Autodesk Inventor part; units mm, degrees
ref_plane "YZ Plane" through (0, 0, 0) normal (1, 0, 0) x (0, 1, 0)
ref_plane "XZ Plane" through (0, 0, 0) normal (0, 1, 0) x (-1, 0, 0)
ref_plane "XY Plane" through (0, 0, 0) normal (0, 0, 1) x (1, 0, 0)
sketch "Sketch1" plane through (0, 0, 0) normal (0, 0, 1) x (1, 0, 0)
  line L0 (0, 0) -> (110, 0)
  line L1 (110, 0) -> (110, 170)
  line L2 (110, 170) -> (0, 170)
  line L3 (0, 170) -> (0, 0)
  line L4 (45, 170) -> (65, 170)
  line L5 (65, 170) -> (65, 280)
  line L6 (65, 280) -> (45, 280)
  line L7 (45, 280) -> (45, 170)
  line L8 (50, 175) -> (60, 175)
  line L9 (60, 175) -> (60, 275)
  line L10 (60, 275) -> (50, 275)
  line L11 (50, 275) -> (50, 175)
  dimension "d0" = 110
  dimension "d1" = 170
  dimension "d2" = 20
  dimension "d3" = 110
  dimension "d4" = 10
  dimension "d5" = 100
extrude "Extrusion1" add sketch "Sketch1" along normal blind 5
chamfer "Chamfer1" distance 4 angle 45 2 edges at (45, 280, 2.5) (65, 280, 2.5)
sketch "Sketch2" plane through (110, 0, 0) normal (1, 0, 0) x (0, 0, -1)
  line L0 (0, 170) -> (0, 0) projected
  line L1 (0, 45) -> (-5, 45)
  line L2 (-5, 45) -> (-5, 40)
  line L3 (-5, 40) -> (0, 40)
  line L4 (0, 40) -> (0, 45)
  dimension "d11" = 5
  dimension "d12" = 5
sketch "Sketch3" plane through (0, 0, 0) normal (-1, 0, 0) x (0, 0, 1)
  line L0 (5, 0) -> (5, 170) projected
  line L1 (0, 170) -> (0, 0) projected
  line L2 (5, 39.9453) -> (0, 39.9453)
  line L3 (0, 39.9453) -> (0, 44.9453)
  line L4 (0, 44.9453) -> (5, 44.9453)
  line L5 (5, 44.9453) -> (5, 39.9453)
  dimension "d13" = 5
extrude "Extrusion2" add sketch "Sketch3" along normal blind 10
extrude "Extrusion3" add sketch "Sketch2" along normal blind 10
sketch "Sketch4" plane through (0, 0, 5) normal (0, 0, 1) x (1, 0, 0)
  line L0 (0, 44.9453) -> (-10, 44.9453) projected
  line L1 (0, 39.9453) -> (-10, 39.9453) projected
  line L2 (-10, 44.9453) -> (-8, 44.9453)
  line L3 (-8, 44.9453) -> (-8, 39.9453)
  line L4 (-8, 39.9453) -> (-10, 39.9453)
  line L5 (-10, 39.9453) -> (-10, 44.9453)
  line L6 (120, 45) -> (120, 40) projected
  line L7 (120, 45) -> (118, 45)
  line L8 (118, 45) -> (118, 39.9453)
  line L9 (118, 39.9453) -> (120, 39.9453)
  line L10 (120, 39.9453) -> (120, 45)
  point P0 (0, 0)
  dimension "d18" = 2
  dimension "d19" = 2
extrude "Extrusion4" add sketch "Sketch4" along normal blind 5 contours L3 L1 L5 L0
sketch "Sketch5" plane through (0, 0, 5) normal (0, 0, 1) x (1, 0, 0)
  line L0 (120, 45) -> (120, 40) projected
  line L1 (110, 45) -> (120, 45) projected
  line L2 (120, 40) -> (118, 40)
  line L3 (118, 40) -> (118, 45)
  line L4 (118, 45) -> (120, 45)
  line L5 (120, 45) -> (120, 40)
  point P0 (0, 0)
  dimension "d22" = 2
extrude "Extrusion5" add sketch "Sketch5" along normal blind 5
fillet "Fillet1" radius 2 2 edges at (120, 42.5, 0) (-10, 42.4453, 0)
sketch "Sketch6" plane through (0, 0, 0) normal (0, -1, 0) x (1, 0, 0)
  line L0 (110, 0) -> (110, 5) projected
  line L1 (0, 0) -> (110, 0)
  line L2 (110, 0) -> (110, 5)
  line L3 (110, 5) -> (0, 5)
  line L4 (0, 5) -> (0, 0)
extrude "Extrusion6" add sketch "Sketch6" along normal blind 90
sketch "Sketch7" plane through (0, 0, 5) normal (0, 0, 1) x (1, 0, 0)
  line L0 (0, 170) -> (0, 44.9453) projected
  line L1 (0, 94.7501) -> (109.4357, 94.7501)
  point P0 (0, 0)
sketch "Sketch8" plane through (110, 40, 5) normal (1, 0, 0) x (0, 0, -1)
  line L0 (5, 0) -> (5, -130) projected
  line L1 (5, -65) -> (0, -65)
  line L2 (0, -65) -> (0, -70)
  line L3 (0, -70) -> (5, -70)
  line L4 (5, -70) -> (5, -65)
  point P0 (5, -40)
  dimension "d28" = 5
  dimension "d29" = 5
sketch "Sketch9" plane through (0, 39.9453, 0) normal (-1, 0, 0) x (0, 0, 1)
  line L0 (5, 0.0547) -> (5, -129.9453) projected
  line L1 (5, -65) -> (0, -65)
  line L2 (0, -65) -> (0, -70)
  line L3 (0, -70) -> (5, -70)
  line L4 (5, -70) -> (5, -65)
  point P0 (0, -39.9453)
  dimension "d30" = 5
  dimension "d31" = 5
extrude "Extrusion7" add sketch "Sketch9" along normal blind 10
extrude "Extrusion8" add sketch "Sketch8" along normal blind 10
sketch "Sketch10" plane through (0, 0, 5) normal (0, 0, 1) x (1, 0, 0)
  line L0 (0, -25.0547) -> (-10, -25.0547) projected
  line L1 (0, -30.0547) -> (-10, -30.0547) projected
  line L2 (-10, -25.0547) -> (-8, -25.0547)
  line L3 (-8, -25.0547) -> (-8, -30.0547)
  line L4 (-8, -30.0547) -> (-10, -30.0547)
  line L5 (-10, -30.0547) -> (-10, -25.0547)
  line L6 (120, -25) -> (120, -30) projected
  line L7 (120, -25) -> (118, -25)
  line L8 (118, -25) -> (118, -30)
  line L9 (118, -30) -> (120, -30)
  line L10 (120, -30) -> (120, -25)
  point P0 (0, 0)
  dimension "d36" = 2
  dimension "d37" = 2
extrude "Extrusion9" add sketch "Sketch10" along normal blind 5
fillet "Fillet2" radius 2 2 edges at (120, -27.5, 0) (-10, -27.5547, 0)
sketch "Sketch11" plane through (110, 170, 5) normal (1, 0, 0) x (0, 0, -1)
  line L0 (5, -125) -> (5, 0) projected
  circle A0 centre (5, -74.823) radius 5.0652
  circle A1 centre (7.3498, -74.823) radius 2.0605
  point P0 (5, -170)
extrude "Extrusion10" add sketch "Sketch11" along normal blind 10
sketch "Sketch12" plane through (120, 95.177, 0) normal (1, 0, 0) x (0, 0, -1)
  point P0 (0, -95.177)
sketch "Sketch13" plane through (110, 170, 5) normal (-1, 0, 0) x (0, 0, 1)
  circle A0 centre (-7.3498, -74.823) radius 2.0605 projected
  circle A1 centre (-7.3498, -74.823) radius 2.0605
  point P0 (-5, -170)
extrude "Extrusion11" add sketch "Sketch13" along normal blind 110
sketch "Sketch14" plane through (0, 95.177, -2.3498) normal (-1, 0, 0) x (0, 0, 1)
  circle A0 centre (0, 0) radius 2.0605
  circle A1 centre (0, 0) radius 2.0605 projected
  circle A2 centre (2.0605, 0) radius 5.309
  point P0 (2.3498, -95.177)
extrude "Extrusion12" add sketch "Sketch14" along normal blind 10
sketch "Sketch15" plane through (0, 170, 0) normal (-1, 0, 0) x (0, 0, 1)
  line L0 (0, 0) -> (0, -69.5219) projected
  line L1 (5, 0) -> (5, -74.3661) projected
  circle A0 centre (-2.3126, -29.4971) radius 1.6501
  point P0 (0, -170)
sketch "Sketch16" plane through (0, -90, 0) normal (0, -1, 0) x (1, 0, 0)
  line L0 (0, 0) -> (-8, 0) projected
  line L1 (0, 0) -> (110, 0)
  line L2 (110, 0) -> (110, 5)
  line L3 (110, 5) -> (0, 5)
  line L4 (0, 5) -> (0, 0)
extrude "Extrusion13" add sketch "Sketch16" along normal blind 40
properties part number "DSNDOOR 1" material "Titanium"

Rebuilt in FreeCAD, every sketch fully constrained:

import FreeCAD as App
import Part
import Sketcher


def edges_at(feature, points):
    """Names of the edges that pass closest to the given points."""
    edges = feature.Shape.Edges
    near = lambda p: min(range(len(edges)), key=lambda i: edges[i].distToShape(Part.Vertex(*p))[0])
    return sorted({f"Edge{near(p) + 1}" for p in points})


def add_polygon(sketch, points):
    """Adds a closed chain of lines whose ends are joined by coincident constraints."""
    first, n = sketch.GeometryCount, len(points)
    for a, b in zip(points, points[1:] + points[:1]):
        sketch.addGeometry(Part.LineSegment(App.Vector(*a, 0), App.Vector(*b, 0)), False)
    for i in range(n):
        sketch.addConstraint(Sketcher.Constraint("Coincident", first + i, 2, first + (i + 1) % n, 1))

doc = App.newDocument("Part")
body = doc.addObject("PartDesign::Body", "Body")
body.AllowCompound = True

# Sketch on XY plane
sketch1 = body.newObject("Sketcher::SketchObject", "Sketch")
sketch1.AttachmentSupport = (doc.getObject("XY_Plane"), [""])
sketch1.MapMode = "FlatFace"
add_polygon(sketch1, [(0, 170), (0, 0), (110, 0), (110, 170), (65, 170), (65, 280), (45, 280), (45, 170)])  # lines 0-7
add_polygon(sketch1, [(50, 175), (50, 275), (60, 275), (60, 175)])  # lines 8-11
sketch1.addConstraint([
    Sketcher.Constraint("Vertical", 0),
    Sketcher.Constraint("Horizontal", 1),
    Sketcher.Constraint("Vertical", 2),
    Sketcher.Constraint("Horizontal", 3),
    Sketcher.Constraint("Vertical", 4),
    Sketcher.Constraint("Horizontal", 5),
    Sketcher.Constraint("Vertical", 6),
    Sketcher.Constraint("Horizontal", 7),
    Sketcher.Constraint("Vertical", 8),
    Sketcher.Constraint("Horizontal", 9),
    Sketcher.Constraint("Vertical", 10),
    Sketcher.Constraint("Horizontal", 11),
    Sketcher.Constraint("Coincident", 0, 2, -1, 1),
    Sketcher.Constraint("Horizontal", 3, 2, 6, 2),
    Sketcher.Constraint("Equal", 3, 7),
    Sketcher.Constraint("Equal", 1, 4),
    Sketcher.Constraint("DistanceX", 1, 1, 1, 2, 110.0),
    Sketcher.Constraint("DistanceX", 5, 2, 5, 1, 20.0),
    Sketcher.Constraint("DistanceX", 9, 1, 9, 2, 10.0),
    Sketcher.Constraint("DistanceY", 0, 2, 0, 1, 170.0),
    Sketcher.Constraint("DistanceY", 8, 1, 8, 2, 100.0),
    Sketcher.Constraint("DistanceX", -1, 1, 8, 2, 50.0),
    Sketcher.Constraint("DistanceY", -1, 1, 8, 2, 275.0),
])
pad1 = body.newObject("PartDesign::Pad", "Pad")
pad1.Profile = sketch1
pad1.Length = 5
doc.recompute()

chamfer = body.newObject("PartDesign::Chamfer", "Chamfer")
chamfer.Base = (pad1, edges_at(pad1, [(45, 280, 2.5), (65, 280, 2.5)]))
chamfer.Size = 4

# Sketch on YZ plane
sketch2 = body.newObject("Sketcher::SketchObject", "Sketch001")
sketch2.AttachmentSupport = (doc.getObject("YZ_Plane"), [""])
sketch2.MapMode = "FlatFace"
add_polygon(sketch2, [(40, 0), (40, 5), (45, 5), (45, 0)])  # lines 0-3
sketch2.addConstraint([
    Sketcher.Constraint("Vertical", 0),
    Sketcher.Constraint("Horizontal", 1),
    Sketcher.Constraint("Vertical", 2),
    Sketcher.Constraint("Horizontal", 3),
    Sketcher.Constraint("PointOnObject", 2, 2, -1),
    Sketcher.Constraint("Equal", 3, 0),
    Sketcher.Constraint("DistanceX", 1, 1, 1, 2, 5.0),
    Sketcher.Constraint("DistanceX", -1, 1, 0, 2, 39.9453),
])
pad2 = body.newObject("PartDesign::Pad", "Pad001")
pad2.Profile = sketch2
pad2.Length = 10
pad2.Reversed = True

# Sketch on YZ plane
sketch3 = body.newObject("Sketcher::SketchObject", "Sketch002")
sketch3.AttachmentSupport = (doc.getObject("YZ_Plane"), [""])
sketch3.MapMode = "FlatFace"
sketch3.AttachmentOffset = App.Placement(App.Vector(0, 0, 110), App.Rotation())
add_polygon(sketch3, [(40, 0), (45, 0), (45, 5), (40, 5)])  # lines 0-3
sketch3.addConstraint([
    Sketcher.Constraint("Horizontal", 0),
    Sketcher.Constraint("Vertical", 1),
    Sketcher.Constraint("Horizontal", 2),
    Sketcher.Constraint("Vertical", 3),
    Sketcher.Constraint("PointOnObject", 0, 2, -1),
    Sketcher.Constraint("Equal", 2, 1),
    Sketcher.Constraint("DistanceX", 0, 1, 0, 2, 5.0),
    Sketcher.Constraint("DistanceX", -1, 1, 0, 2, 45.0),
])
pad3 = body.newObject("PartDesign::Pad", "Pad002")
pad3.Profile = sketch3
pad3.Length = 10

# Sketch on XY plane
sketch4 = body.newObject("Sketcher::SketchObject", "Sketch003")
sketch4.AttachmentSupport = (doc.getObject("XY_Plane"), [""])
sketch4.MapMode = "FlatFace"
sketch4.AttachmentOffset = App.Placement(App.Vector(0, 0, 5), App.Rotation())
add_polygon(sketch4, [(-8, 39.9), (-8, 44.9), (-10, 44.9), (-10, 39.9)])  # lines 0-3
sketch4.addConstraint([
    Sketcher.Constraint("Vertical", 0),
    Sketcher.Constraint("Horizontal", 1),
    Sketcher.Constraint("Vertical", 2),
    Sketcher.Constraint("Horizontal", 3),
    Sketcher.Constraint("DistanceX", 1, 2, 1, 1, 2.0),
    Sketcher.Constraint("DistanceY", 0, 1, 0, 2, 5.0),
    Sketcher.Constraint("DistanceX", 0, 2, -1, 1, 8.0),
    Sketcher.Constraint("DistanceY", -1, 1, 0, 2, 44.9453),
])
pad4 = body.newObject("PartDesign::Pad", "Pad003")
pad4.Profile = sketch4
pad4.Length = 5

# Sketch on XY plane
sketch5 = body.newObject("Sketcher::SketchObject", "Sketch004")
sketch5.AttachmentSupport = (doc.getObject("XY_Plane"), [""])
sketch5.MapMode = "FlatFace"
sketch5.AttachmentOffset = App.Placement(App.Vector(0, 0, 5), App.Rotation())
add_polygon(sketch5, [(120, 40), (120, 45), (118, 45), (118, 40)])  # lines 0-3
sketch5.addConstraint([
    Sketcher.Constraint("Vertical", 0),
    Sketcher.Constraint("Horizontal", 1),
    Sketcher.Constraint("Vertical", 2),
    Sketcher.Constraint("Horizontal", 3),
    Sketcher.Constraint("DistanceX", 1, 2, 1, 1, 2.0),
    Sketcher.Constraint("DistanceY", 0, 1, 0, 2, 5.0),
    Sketcher.Constraint("DistanceX", -1, 1, 0, 2, 120.0),
    Sketcher.Constraint("DistanceY", -1, 1, 0, 2, 45.0),
])
pad5 = body.newObject("PartDesign::Pad", "Pad004")
pad5.Profile = sketch5
pad5.Length = 5
doc.recompute()

fillet = body.newObject("PartDesign::Fillet", "Fillet")
fillet.Base = (pad5, edges_at(pad5, [(120, 42.5, 0), (-10, 42.445, 0)]))
fillet.Radius = 2

# Sketch on XZ plane
sketch6 = body.newObject("Sketcher::SketchObject", "Sketch005")
sketch6.AttachmentSupport = (doc.getObject("XZ_Plane"), [""])
sketch6.MapMode = "FlatFace"
add_polygon(sketch6, [(0, 0), (110, 0), (110, 5), (0, 5)])  # lines 0-3
sketch6.addConstraint([
    Sketcher.Constraint("Horizontal", 0),
    Sketcher.Constraint("Vertical", 1),
    Sketcher.Constraint("Horizontal", 2),
    Sketcher.Constraint("Vertical", 3),
    Sketcher.Constraint("Coincident", 3, 2, -1, 1),
    Sketcher.Constraint("DistanceX", 0, 1, 0, 2, 110.0),
    Sketcher.Constraint("DistanceY", 1, 1, 1, 2, 5.0),
])
pad6 = body.newObject("PartDesign::Pad", "Pad005")
pad6.Profile = sketch6
pad6.Length = 90

# Sketch on YZ plane
sketch7 = body.newObject("Sketcher::SketchObject", "Sketch006")
sketch7.AttachmentSupport = (doc.getObject("YZ_Plane"), [""])
sketch7.MapMode = "FlatFace"
add_polygon(sketch7, [(-30, 5), (-25, 5), (-25, 0), (-30, 0)])  # lines 0-3
sketch7.addConstraint([
    Sketcher.Constraint("Horizontal", 0),
    Sketcher.Constraint("Vertical", 1),
    Sketcher.Constraint("Horizontal", 2),
    Sketcher.Constraint("Vertical", 3),
    Sketcher.Constraint("PointOnObject", 1, 2, -1),
    Sketcher.Constraint("Equal", 2, 1),
    Sketcher.Constraint("DistanceX", 0, 1, 0, 2, 5.0),
    Sketcher.Constraint("DistanceX", 0, 2, -1, 1, 25.0547),
])
pad7 = body.newObject("PartDesign::Pad", "Pad006")
pad7.Profile = sketch7
pad7.Length = 10
pad7.Reversed = True

# Sketch on YZ plane
sketch8 = body.newObject("Sketcher::SketchObject", "Sketch007")
sketch8.AttachmentSupport = (doc.getObject("YZ_Plane"), [""])
sketch8.MapMode = "FlatFace"
sketch8.AttachmentOffset = App.Placement(App.Vector(0, 0, 110), App.Rotation())
add_polygon(sketch8, [(-30, 0), (-25, 0), (-25, 5), (-30, 5)])  # lines 0-3
sketch8.addConstraint([
    Sketcher.Constraint("Horizontal", 0),
    Sketcher.Constraint("Vertical", 1),
    Sketcher.Constraint("Horizontal", 2),
    Sketcher.Constraint("Vertical", 3),
    Sketcher.Constraint("PointOnObject", 0, 2, -1),
    Sketcher.Constraint("Equal", 2, 1),
    Sketcher.Constraint("DistanceX", 0, 1, 0, 2, 5.0),
    Sketcher.Constraint("DistanceX", 0, 2, -1, 1, 25.0),
])
pad8 = body.newObject("PartDesign::Pad", "Pad007")
pad8.Profile = sketch8
pad8.Length = 10

# Sketch on XY plane
sketch9 = body.newObject("Sketcher::SketchObject", "Sketch008")
sketch9.AttachmentSupport = (doc.getObject("XY_Plane"), [""])
sketch9.MapMode = "FlatFace"
sketch9.AttachmentOffset = App.Placement(App.Vector(0, 0, 5), App.Rotation())
add_polygon(sketch9, [(-8, -30.1), (-8, -25.1), (-10, -25.1), (-10, -30.1)])  # lines 0-3
add_polygon(sketch9, [(120, -30), (120, -25), (118, -25), (118, -30)])  # lines 4-7
sketch9.addConstraint([
    Sketcher.Constraint("Vertical", 0),
    Sketcher.Constraint("Horizontal", 1),
    Sketcher.Constraint("Vertical", 2),
    Sketcher.Constraint("Horizontal", 3),
    Sketcher.Constraint("Vertical", 4),
    Sketcher.Constraint("Horizontal", 5),
    Sketcher.Constraint("Vertical", 6),
    Sketcher.Constraint("Horizontal", 7),
    Sketcher.Constraint("Equal", 3, 5),
    Sketcher.Constraint("Equal", 2, 4),
    Sketcher.Constraint("DistanceX", 1, 2, 1, 1, 2.0),
    Sketcher.Constraint("DistanceY", 0, 1, 0, 2, 5.0),
    Sketcher.Constraint("DistanceX", 0, 2, -1, 1, 8.0),
    Sketcher.Constraint("DistanceX", -1, 1, 4, 2, 120.0),
    Sketcher.Constraint("DistanceY", 4, 2, -1, 1, 25.0),
    Sketcher.Constraint("DistanceY", 0, 2, -1, 1, 25.0547),
])
pad9 = body.newObject("PartDesign::Pad", "Pad008")
pad9.Profile = sketch9
pad9.Length = 5
doc.recompute()

fillet2 = body.newObject("PartDesign::Fillet", "Fillet001")
fillet2.Base = (pad9, edges_at(pad9, [(120, -27.5, 0), (-10, -27.555, 0)]))
fillet2.Radius = 2

# Sketch on YZ plane
sketch10 = body.newObject("Sketcher::SketchObject", "Sketch009")
sketch10.AttachmentSupport = (doc.getObject("YZ_Plane"), [""])
sketch10.MapMode = "FlatFace"
sketch10.AttachmentOffset = App.Placement(App.Vector(0, 0, 110), App.Rotation())
sketch10.addGeometry([
    Part.Circle(App.Vector(95.2, 0, 0), App.Vector(0, 0, 1), 5.1),
    Part.Circle(App.Vector(95.2, -2.3, 0), App.Vector(0, 0, 1), 2.1),
], False)
sketch10.addConstraint([
    Sketcher.Constraint("PointOnObject", 0, 3, -1),
    Sketcher.Constraint("Vertical", 0, 3, 1, 3),
    Sketcher.Constraint("Diameter", 1, 4.121),
    Sketcher.Constraint("Diameter", 0, 10.1304),
    Sketcher.Constraint("DistanceX", -1, 1, 0, 3, 95.177),
    Sketcher.Constraint("DistanceY", 1, 3, -1, 1, 2.3498),
])
pad10 = body.newObject("PartDesign::Pad", "Pad009")
pad10.Profile = sketch10
pad10.Length = 10

# Sketch on YZ plane
sketch11 = body.newObject("Sketcher::SketchObject", "Sketch010")
sketch11.AttachmentSupport = (doc.getObject("YZ_Plane"), [""])
sketch11.MapMode = "FlatFace"
sketch11.AttachmentOffset = App.Placement(App.Vector(0, 0, 110), App.Rotation())
sketch11.addGeometry(Part.Circle(App.Vector(95.2, -2.3, 0), App.Vector(0, 0, 1), 2.1), False)
sketch11.addConstraint([
    Sketcher.Constraint("Diameter", 0, 4.121),
    Sketcher.Constraint("DistanceX", -1, 1, 0, 3, 95.177),
    Sketcher.Constraint("DistanceY", 0, 3, -1, 1, 2.3498),
])
pad11 = body.newObject("PartDesign::Pad", "Pad010")
pad11.Profile = sketch11
pad11.Length = 110
pad11.Reversed = True

# Sketch on YZ plane
sketch12 = body.newObject("Sketcher::SketchObject", "Sketch011")
sketch12.AttachmentSupport = (doc.getObject("YZ_Plane"), [""])
sketch12.MapMode = "FlatFace"
sketch12.addGeometry([
    Part.Circle(App.Vector(95.2, -0.3, 0), App.Vector(0, 0, 1), 5.3),
    Part.Circle(App.Vector(95.2, -2.3, 0), App.Vector(0, 0, 1), 2.1),
], False)
sketch12.addConstraint([
    Sketcher.Constraint("Vertical", 0, 3, 1, 3),
    Sketcher.Constraint("Diameter", 0, 10.618),
    Sketcher.Constraint("Diameter", 1, 4.121),
    Sketcher.Constraint("DistanceX", -1, 1, 0, 3, 95.177),
    Sketcher.Constraint("DistanceY", 0, 3, -1, 1, 0.2893),
    Sketcher.Constraint("DistanceY", 1, 3, -1, 1, 2.3498),
])
pad12 = body.newObject("PartDesign::Pad", "Pad011")
pad12.Profile = sketch12
pad12.Length = 10
pad12.Reversed = True

# Sketch on XZ plane
sketch13 = body.newObject("Sketcher::SketchObject", "Sketch012")
sketch13.AttachmentSupport = (doc.getObject("XZ_Plane"), [""])
sketch13.MapMode = "FlatFace"
sketch13.AttachmentOffset = App.Placement(App.Vector(0, 0, 90), App.Rotation())
add_polygon(sketch13, [(0, 5), (0, 0), (110, 0), (110, 5)])  # lines 0-3
sketch13.addConstraint([
    Sketcher.Constraint("Vertical", 0),
    Sketcher.Constraint("Horizontal", 1),
    Sketcher.Constraint("Vertical", 2),
    Sketcher.Constraint("Horizontal", 3),
    Sketcher.Constraint("Coincident", 0, 2, -1, 1),
    Sketcher.Constraint("DistanceX", 1, 1, 1, 2, 110.0),
    Sketcher.Constraint("DistanceY", 0, 2, 0, 1, 5.0),
])
pad13 = body.newObject("PartDesign::Pad", "Pad012")
pad13.Profile = sketch13
pad13.Length = 40

doc.recompute()
